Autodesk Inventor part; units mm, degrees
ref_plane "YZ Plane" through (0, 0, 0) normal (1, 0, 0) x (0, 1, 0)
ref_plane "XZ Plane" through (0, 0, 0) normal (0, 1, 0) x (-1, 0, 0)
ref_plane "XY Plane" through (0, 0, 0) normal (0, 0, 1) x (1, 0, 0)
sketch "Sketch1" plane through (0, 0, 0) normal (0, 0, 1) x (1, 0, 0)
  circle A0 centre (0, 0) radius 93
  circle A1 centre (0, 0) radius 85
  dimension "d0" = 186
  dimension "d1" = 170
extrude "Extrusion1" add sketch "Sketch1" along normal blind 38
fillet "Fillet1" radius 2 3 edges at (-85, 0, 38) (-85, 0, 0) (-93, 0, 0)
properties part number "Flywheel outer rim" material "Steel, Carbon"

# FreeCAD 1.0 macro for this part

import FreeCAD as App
import Part
import Sketcher
from FreeCAD import Vector
Q = App.Units.Quantity


def edges_at(feature, points):
    """Names of the edges that pass closest to the given points."""
    edges = feature.Shape.Edges
    near = lambda p: min(range(len(edges)), key=lambda i: edges[i].distToShape(Part.Vertex(*p))[0])
    return sorted({f"Edge{near(p) + 1}" for p in points})

doc = App.newDocument("Part")
body = doc.addObject("PartDesign::Body", "Body")

# Sketch on XY plane
sketch1 = body.newObject("Sketcher::SketchObject", "Sketch")
sketch1.AttachmentSupport = (doc.getObject("XY_Plane"), [""])
sketch1.MapMode = "FlatFace"
sketch1.addGeometry(Part.Circle(Vector(0, 0, 0), Vector(0, 0, 1), 93), False)
sketch1.addGeometry(Part.Circle(Vector(0, 0, 0), Vector(0, 0, 1), 85), False)
sketch1.addConstraint(Sketcher.Constraint("Coincident", 0, 3, -1, 1))
sketch1.addConstraint(Sketcher.Constraint("Coincident", 1, 3, -1, 1))
sketch1.addConstraint(Sketcher.Constraint("Diameter", 0, Q("186 mm")))
sketch1.addConstraint(Sketcher.Constraint("Diameter", 1, Q("170 mm")))
pad1 = body.newObject("PartDesign::Pad", "Pad")
pad1.Profile = sketch1
pad1.Length = 38
doc.recompute()

fillet = body.newObject("PartDesign::Fillet", "Fillet")
fillet.Base = (pad1, edges_at(pad1, [(-85, 0, 38), (-85, 0, 0), (-93, 0, 0)]))
fillet.Radius = 2

doc.recompute()
